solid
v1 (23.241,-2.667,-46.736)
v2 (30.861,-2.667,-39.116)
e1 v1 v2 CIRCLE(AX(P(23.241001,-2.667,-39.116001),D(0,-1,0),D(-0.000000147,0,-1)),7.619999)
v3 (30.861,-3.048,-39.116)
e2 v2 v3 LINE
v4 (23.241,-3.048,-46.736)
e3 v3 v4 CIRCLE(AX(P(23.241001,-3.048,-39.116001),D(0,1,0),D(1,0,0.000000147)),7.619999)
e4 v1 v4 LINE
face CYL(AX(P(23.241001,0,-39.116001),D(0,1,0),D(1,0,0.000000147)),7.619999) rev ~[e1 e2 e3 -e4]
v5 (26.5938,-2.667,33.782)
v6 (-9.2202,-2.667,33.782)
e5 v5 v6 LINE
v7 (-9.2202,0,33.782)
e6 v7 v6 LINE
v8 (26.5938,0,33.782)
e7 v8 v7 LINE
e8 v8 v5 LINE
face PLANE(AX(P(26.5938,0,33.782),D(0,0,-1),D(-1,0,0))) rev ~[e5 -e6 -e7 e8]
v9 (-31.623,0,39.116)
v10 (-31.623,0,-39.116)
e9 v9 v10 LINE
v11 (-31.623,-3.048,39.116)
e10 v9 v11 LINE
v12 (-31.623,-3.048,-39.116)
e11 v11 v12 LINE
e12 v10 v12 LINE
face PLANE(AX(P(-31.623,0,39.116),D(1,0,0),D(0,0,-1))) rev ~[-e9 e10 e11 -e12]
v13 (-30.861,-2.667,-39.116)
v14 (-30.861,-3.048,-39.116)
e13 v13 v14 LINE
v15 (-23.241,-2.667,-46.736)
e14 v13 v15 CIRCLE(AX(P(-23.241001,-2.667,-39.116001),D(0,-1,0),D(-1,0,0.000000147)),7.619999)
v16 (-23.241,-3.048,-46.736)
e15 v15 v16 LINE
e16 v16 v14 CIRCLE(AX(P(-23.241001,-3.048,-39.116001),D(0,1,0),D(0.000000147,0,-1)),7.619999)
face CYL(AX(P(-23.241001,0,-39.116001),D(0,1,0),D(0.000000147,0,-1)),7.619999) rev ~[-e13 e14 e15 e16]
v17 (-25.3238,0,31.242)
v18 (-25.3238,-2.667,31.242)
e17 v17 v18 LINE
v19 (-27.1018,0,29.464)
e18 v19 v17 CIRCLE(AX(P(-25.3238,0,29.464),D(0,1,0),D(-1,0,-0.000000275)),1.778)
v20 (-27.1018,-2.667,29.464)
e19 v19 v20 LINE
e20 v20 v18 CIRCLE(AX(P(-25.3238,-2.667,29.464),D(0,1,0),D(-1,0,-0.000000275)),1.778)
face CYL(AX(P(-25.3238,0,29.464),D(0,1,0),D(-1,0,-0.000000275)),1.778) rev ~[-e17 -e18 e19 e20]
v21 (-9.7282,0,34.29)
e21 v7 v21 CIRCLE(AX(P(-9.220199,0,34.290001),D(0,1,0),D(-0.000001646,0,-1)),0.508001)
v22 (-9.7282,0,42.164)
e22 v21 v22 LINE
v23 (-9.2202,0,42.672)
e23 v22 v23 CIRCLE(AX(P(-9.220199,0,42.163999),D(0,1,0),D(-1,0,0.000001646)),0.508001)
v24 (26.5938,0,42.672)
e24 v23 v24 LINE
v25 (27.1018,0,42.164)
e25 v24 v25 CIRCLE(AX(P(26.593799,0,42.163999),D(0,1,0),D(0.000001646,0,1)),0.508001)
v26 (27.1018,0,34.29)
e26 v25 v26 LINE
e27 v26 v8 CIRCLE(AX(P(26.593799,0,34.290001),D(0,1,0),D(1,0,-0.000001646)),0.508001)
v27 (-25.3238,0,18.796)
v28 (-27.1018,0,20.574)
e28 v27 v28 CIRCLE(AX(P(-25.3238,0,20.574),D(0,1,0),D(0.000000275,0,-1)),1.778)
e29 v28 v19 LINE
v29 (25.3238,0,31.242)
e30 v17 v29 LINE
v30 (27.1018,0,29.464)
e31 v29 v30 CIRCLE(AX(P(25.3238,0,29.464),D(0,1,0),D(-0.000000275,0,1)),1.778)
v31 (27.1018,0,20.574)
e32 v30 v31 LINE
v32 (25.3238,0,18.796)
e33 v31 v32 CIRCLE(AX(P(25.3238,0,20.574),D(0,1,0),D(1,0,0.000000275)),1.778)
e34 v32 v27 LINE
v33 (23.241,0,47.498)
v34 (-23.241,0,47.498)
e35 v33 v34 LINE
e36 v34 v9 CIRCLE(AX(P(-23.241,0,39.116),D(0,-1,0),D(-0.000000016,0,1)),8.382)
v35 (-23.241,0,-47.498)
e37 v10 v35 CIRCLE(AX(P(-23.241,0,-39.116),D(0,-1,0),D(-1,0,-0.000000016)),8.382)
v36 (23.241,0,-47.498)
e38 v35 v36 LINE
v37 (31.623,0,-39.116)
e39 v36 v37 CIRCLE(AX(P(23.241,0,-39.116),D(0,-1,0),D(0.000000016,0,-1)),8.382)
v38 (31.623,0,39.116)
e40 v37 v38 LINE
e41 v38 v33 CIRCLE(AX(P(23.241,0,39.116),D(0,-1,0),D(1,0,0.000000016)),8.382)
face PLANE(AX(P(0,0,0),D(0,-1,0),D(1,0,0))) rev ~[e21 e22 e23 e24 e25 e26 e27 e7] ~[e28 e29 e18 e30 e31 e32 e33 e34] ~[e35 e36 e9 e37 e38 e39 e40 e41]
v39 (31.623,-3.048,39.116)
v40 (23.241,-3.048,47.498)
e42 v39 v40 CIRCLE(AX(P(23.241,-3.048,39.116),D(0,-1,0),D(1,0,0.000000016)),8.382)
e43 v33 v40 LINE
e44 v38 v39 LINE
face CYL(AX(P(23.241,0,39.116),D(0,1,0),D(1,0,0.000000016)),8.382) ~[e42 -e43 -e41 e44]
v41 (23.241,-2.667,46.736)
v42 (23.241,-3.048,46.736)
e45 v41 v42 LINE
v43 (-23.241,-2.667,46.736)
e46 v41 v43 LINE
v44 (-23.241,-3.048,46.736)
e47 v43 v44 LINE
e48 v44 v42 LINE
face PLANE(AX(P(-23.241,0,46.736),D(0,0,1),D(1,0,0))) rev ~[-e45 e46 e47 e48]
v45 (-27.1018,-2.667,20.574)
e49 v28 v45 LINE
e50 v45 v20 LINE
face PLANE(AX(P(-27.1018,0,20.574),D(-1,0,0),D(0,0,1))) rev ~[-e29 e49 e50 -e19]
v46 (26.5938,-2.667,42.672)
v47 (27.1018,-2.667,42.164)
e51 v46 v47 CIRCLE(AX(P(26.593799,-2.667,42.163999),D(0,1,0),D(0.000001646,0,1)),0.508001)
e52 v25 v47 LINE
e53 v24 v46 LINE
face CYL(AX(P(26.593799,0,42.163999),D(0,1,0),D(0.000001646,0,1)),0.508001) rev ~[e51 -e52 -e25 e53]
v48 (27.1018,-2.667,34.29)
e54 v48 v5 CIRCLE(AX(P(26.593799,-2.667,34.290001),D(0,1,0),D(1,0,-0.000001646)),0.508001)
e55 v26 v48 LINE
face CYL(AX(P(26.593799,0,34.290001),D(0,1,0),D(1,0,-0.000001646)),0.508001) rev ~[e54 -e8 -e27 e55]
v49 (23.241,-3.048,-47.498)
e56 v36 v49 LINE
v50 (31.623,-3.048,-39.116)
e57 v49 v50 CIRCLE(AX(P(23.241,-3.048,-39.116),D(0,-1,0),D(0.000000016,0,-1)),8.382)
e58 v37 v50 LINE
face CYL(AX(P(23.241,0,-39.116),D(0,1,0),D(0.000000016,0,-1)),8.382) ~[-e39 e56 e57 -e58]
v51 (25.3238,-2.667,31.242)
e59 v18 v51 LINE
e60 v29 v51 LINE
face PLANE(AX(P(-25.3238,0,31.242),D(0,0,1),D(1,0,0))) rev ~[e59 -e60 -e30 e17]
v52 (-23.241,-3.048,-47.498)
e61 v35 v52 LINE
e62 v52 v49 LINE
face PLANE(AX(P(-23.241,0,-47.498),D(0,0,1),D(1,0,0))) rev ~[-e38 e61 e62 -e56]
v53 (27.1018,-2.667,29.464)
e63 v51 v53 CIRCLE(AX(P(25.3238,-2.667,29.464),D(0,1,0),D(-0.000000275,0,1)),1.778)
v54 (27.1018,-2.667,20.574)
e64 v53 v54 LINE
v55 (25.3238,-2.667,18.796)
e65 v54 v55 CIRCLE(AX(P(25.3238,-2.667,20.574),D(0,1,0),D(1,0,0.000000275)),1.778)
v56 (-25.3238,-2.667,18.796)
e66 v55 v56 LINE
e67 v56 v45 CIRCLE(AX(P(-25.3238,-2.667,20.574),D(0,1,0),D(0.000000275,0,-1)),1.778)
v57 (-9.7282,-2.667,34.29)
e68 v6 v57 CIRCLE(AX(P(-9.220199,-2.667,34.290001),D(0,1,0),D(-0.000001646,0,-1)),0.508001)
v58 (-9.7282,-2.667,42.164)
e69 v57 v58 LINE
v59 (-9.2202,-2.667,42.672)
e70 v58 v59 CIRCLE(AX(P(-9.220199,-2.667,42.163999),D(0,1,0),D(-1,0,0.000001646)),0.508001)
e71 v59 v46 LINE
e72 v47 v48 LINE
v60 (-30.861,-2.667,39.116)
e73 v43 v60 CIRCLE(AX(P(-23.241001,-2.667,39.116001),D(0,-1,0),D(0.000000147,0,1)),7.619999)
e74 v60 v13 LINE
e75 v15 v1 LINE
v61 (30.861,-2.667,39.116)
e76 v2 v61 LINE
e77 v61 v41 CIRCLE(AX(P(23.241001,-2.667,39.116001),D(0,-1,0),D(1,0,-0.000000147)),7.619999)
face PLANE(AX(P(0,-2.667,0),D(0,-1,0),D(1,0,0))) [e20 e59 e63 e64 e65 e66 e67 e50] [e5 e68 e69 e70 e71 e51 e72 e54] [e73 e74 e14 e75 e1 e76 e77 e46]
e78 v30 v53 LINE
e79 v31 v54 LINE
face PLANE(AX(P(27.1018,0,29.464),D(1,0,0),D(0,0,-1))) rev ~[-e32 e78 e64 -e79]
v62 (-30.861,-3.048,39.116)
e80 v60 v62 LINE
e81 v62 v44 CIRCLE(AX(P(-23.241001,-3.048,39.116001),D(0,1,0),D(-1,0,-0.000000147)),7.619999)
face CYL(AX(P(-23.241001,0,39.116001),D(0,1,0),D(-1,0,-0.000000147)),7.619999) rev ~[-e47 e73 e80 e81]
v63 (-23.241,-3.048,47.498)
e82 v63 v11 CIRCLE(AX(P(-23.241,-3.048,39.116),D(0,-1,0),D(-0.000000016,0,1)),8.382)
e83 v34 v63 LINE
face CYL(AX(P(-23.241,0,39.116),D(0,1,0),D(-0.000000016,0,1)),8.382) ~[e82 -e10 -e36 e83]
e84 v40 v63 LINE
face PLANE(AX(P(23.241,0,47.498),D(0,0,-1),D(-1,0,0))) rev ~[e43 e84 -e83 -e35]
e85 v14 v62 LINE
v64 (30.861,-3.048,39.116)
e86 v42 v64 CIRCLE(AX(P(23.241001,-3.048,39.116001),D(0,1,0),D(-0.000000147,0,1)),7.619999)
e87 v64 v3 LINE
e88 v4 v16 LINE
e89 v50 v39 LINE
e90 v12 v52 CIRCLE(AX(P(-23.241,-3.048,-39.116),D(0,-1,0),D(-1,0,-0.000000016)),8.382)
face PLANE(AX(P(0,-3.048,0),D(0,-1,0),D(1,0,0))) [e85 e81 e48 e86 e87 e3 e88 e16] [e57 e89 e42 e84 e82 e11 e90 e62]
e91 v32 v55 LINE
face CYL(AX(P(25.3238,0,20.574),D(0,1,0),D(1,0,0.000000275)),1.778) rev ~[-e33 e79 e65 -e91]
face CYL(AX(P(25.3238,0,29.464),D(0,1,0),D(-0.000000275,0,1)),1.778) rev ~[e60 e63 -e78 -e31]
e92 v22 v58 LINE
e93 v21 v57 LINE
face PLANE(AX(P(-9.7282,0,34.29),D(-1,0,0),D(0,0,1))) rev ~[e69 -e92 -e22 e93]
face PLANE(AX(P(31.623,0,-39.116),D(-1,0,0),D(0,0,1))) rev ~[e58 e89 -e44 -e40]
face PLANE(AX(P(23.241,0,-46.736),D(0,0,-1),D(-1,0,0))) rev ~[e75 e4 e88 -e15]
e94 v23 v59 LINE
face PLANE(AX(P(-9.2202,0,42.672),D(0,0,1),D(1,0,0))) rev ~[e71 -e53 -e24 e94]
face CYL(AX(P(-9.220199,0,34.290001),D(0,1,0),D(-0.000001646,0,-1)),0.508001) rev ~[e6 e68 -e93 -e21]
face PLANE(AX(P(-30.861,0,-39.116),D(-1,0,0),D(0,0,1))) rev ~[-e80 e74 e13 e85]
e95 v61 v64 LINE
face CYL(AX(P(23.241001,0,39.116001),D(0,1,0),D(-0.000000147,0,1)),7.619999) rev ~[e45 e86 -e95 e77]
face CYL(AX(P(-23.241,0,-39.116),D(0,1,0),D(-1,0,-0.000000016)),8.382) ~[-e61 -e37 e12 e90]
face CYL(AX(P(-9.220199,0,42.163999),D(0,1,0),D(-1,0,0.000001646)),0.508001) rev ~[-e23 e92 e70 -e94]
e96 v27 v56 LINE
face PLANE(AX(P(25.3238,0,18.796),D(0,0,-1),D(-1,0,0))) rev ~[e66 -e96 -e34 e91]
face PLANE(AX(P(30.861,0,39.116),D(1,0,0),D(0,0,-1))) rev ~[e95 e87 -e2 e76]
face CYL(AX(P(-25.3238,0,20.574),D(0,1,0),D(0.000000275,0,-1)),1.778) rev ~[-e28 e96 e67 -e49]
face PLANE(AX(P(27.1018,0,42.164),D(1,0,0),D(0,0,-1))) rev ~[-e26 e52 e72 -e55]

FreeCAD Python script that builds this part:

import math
import FreeCAD as App
import Part
import Sketcher

V = App.Vector
Q = App.Units.Quantity

doc = App.newDocument("Part")
params = doc.addObject("Spreadsheet::Sheet", "Params")
for row, (alias, value) in enumerate([
    ("sketch1_radius", "0.3 in"),
    ("sketch1_radius2", "0.33 in"),
    ("sketch1_width", "1.83 in"),
    ("sketch1_height", "3.08 in"),
    ("pad1_length", "0.12 in"),
    ("sketch2_radius", "0.3 in"),
    ("sketch2_radius2", "0.07 in"),
    ("sketch2_radius3", "0.02 in"),
    ("sketch2_width", "1.83 in"),
    ("sketch2_width2", "1.41 in"),
    ("pad2_length", "0.105 in"),
], start=1):
    params.set(f"A{row}", alias)
    params.set(f"B{row}", "=" + value)
    params.setAlias(f"B{row}", alias)

body = doc.addObject("PartDesign::Body", "Body")

sketch1 = body.newObject("Sketcher::SketchObject", "Sketch")
sketch1.AttachmentSupport = (doc.getObject("XZ_Plane"), [""])
sketch1.MapMode = "FlatFace"
sketch1.addGeometry(Part.LineSegment(V(-32, 39, 0), V(-32, -39, 0)), False)
sketch1.addGeometry(Part.ArcOfCircle(Part.Circle(V(-23, -39, 0), V(0, 0, 1), 8), math.radians(-180), math.radians(-90)), False)
sketch1.addGeometry(Part.LineSegment(V(-23, -47, 0), V(23, -47, 0)), False)
sketch1.addGeometry(Part.ArcOfCircle(Part.Circle(V(23, -39, 0), V(0, 0, 1), 8), math.radians(-90), math.radians(0)), False)
sketch1.addGeometry(Part.LineSegment(V(32, -39, 0), V(32, 39, 0)), False)
sketch1.addGeometry(Part.ArcOfCircle(Part.Circle(V(23, 39, 0), V(0, 0, 1), 8), math.radians(0), math.radians(90)), False)
sketch1.addGeometry(Part.LineSegment(V(23, 47, 0), V(-23, 47, 0)), False)
sketch1.addGeometry(Part.ArcOfCircle(Part.Circle(V(-23, 39, 0), V(0, 0, 1), 8), math.radians(90), math.radians(180)), False)
sketch1.addGeometry(Part.LineSegment(V(31, 39, 0), V(31, -39, 0)), False)
sketch1.addGeometry(Part.ArcOfCircle(Part.Circle(V(23, -39, 0), V(0, 0, 1), 8), math.radians(-90), math.radians(0)), False)
sketch1.addGeometry(Part.LineSegment(V(23, -47, 0), V(-23, -47, 0)), False)
sketch1.addGeometry(Part.ArcOfCircle(Part.Circle(V(-23, -39, 0), V(0, 0, 1), 8), math.radians(180), math.radians(270)), False)
sketch1.addGeometry(Part.LineSegment(V(-31, -39, 0), V(-31, 39, 0)), False)
sketch1.addGeometry(Part.ArcOfCircle(Part.Circle(V(-23, 39, 0), V(0, 0, 1), 8), math.radians(90), math.radians(180)), False)
sketch1.addGeometry(Part.LineSegment(V(-23, 47, 0), V(23, 47, 0)), False)
sketch1.addGeometry(Part.ArcOfCircle(Part.Circle(V(23, 39, 0), V(0, 0, 1), 8), math.radians(0), math.radians(90)), False)
sketch1.addConstraint(Sketcher.Constraint("Tangent", 0, 2, 1, 1))
sketch1.addConstraint(Sketcher.Constraint("Tangent", 1, 2, 2, 1))
sketch1.addConstraint(Sketcher.Constraint("Tangent", 2, 2, 3, 1))
sketch1.addConstraint(Sketcher.Constraint("Tangent", 3, 2, 4, 1))
sketch1.addConstraint(Sketcher.Constraint("Tangent", 4, 2, 5, 1))
sketch1.addConstraint(Sketcher.Constraint("Tangent", 5, 2, 6, 1))
sketch1.addConstraint(Sketcher.Constraint("Tangent", 6, 2, 7, 1))
sketch1.addConstraint(Sketcher.Constraint("Tangent", 7, 2, 0, 1))
sketch1.addConstraint(Sketcher.Constraint("Tangent", 8, 2, 9, 2))
sketch1.addConstraint(Sketcher.Constraint("Tangent", 9, 1, 10, 1))
sketch1.addConstraint(Sketcher.Constraint("Tangent", 10, 2, 11, 2))
sketch1.addConstraint(Sketcher.Constraint("Tangent", 11, 1, 12, 1))
sketch1.addConstraint(Sketcher.Constraint("Tangent", 12, 2, 13, 2))
sketch1.addConstraint(Sketcher.Constraint("Tangent", 13, 1, 14, 1))
sketch1.addConstraint(Sketcher.Constraint("Tangent", 14, 2, 15, 2))
sketch1.addConstraint(Sketcher.Constraint("Tangent", 15, 1, 8, 1))
sketch1.addConstraint(Sketcher.Constraint("Vertical", 0))
sketch1.addConstraint(Sketcher.Constraint("Horizontal", 2))
sketch1.addConstraint(Sketcher.Constraint("Vertical", 4))
sketch1.addConstraint(Sketcher.Constraint("Horizontal", 6))
sketch1.addConstraint(Sketcher.Constraint("Vertical", 8))
sketch1.addConstraint(Sketcher.Constraint("Horizontal", 10))
sketch1.addConstraint(Sketcher.Constraint("Vertical", 12))
sketch1.addConstraint(Sketcher.Constraint("Horizontal", 14))
sketch1.addConstraint(Sketcher.Constraint("Coincident", 9, 3, 3, 3))
sketch1.addConstraint(Sketcher.Constraint("Coincident", 11, 3, 1, 3))
sketch1.addConstraint(Sketcher.Constraint("Coincident", 13, 3, 7, 3))
sketch1.addConstraint(Sketcher.Constraint("Equal", 1, 3))
sketch1.addConstraint(Sketcher.Constraint("Equal", 3, 5))
sketch1.addConstraint(Sketcher.Constraint("Equal", 5, 7))
sketch1.addConstraint(Sketcher.Constraint("Equal", 13, 15))
sketch1.addConstraint(Sketcher.Constraint("Symmetric", 1, 3, 5, 3, -1, 1))
sketch1.addConstraint(Sketcher.Constraint("Radius", 9, Q("0.3 in")))
sketch1.addConstraint(Sketcher.Constraint("Radius", 1, Q("0.33 in")))
sketch1.addConstraint(Sketcher.Constraint("DistanceX", 2, 1, 2, 2, Q("1.83 in")))
sketch1.addConstraint(Sketcher.Constraint("DistanceY", 0, 2, 0, 1, Q("3.08 in")))
sketch1.setExpression("Constraints[32]", "Params.sketch1_radius")
sketch1.setExpression("Constraints[33]", "Params.sketch1_radius2")
sketch1.setExpression("Constraints[34]", "Params.sketch1_width")
sketch1.setExpression("Constraints[35]", "Params.sketch1_height")
pad1 = body.newObject("PartDesign::Pad", "Pad")
pad1.Profile = sketch1
pad1.setExpression("Length", "Params.pad1_length")

sketch2 = body.newObject("Sketcher::SketchObject", "Sketch001")
sketch2.AttachmentSupport = (doc.getObject("XZ_Plane"), [""])
sketch2.MapMode = "FlatFace"
sketch2.addGeometry(Part.LineSegment(V(-23.2, -46.7, 0), V(23.2, -46.7, 0)), False)
sketch2.addGeometry(Part.ArcOfCircle(Part.Circle(V(23.2, -39.1, 0), V(0, 0, 1), 7.6), math.radians(-90), math.radians(0)), False)
sketch2.addGeometry(Part.LineSegment(V(30.9, -39.1, 0), V(30.9, 39.1, 0)), False)
sketch2.addGeometry(Part.ArcOfCircle(Part.Circle(V(23.2, 39.1, 0), V(0, 0, 1), 7.6), math.radians(0), math.radians(90)), False)
sketch2.addGeometry(Part.LineSegment(V(23.2, 46.7, 0), V(-23.2, 46.7, 0)), False)
sketch2.addGeometry(Part.ArcOfCircle(Part.Circle(V(-23.2, 39.1, 0), V(0, 0, 1), 7.6), math.radians(90), math.radians(180)), False)
sketch2.addGeometry(Part.LineSegment(V(-30.9, 39.1, 0), V(-30.9, -39.1, 0)), False)
sketch2.addGeometry(Part.ArcOfCircle(Part.Circle(V(-23.2, -39.1, 0), V(0, 0, 1), 7.6), math.radians(180), math.radians(270)), False)
sketch2.addGeometry(Part.LineSegment(V(27.1, 29.5, 0), V(27.1, 20.6, 0)), False)
sketch2.addGeometry(Part.ArcOfCircle(Part.Circle(V(25.3, 20.6, 0), V(0, 0, 1), 1.8), math.radians(-90), math.radians(0)), False)
sketch2.addGeometry(Part.LineSegment(V(25.3, 18.8, 0), V(-25.3, 18.8, 0)), False)
sketch2.addGeometry(Part.ArcOfCircle(Part.Circle(V(-25.3, 20.6, 0), V(0, 0, 1), 1.8), math.radians(180), math.radians(270)), False)
sketch2.addGeometry(Part.LineSegment(V(-27.1, 20.6, 0), V(-27.1, 29.5, 0)), False)
sketch2.addGeometry(Part.ArcOfCircle(Part.Circle(V(-25.3, 29.5, 0), V(0, 0, 1), 1.8), math.radians(90), math.radians(180)), False)
sketch2.addGeometry(Part.LineSegment(V(-25.3, 31.2, 0), V(25.3, 31.2, 0)), False)
sketch2.addGeometry(Part.ArcOfCircle(Part.Circle(V(25.3, 29.5, 0), V(0, 0, 1), 1.8), math.radians(0), math.radians(90)), False)
sketch2.addGeometry(Part.LineSegment(V(-9.7, 34.3, 0), V(-9.7, 42.2, 0)), False)
sketch2.addGeometry(Part.ArcOfCircle(Part.Circle(V(-9.2, 42.2, 0), V(0, 0, 1), 0.5), math.radians(90), math.radians(180)), False)
sketch2.addGeometry(Part.LineSegment(V(-9.2, 42.7, 0), V(26.6, 42.7, 0)), False)
sketch2.addGeometry(Part.ArcOfCircle(Part.Circle(V(26.6, 42.2, 0), V(0, 0, 1), 0.5), math.radians(0), math.radians(90)), False)
sketch2.addGeometry(Part.LineSegment(V(27.1, 42.2, 0), V(27.1, 34.3, 0)), False)
sketch2.addGeometry(Part.ArcOfCircle(Part.Circle(V(26.6, 34.3, 0), V(0, 0, 1), 0.5), math.radians(-90), math.radians(0)), False)
sketch2.addGeometry(Part.LineSegment(V(26.6, 33.8, 0), V(-9.2, 33.8, 0)), False)
sketch2.addGeometry(Part.ArcOfCircle(Part.Circle(V(-9.2, 34.3, 0), V(0, 0, 1), 0.5), math.radians(-180), math.radians(-90)), False)
sketch2.addConstraint(Sketcher.Constraint("Tangent", 0, 2, 1, 1))
sketch2.addConstraint(Sketcher.Constraint("Tangent", 1, 2, 2, 1))
sketch2.addConstraint(Sketcher.Constraint("Tangent", 2, 2, 3, 1))
sketch2.addConstraint(Sketcher.Constraint("Tangent", 3, 2, 4, 1))
sketch2.addConstraint(Sketcher.Constraint("Tangent", 4, 2, 5, 1))
sketch2.addConstraint(Sketcher.Constraint("Tangent", 5, 2, 6, 1))
sketch2.addConstraint(Sketcher.Constraint("Tangent", 6, 2, 7, 1))
sketch2.addConstraint(Sketcher.Constraint("Tangent", 7, 2, 0, 1))
sketch2.addConstraint(Sketcher.Constraint("Tangent", 8, 2, 9, 2))
sketch2.addConstraint(Sketcher.Constraint("Tangent", 9, 1, 10, 1))
sketch2.addConstraint(Sketcher.Constraint("Tangent", 10, 2, 11, 2))
sketch2.addConstraint(Sketcher.Constraint("Tangent", 11, 1, 12, 1))
sketch2.addConstraint(Sketcher.Constraint("Tangent", 12, 2, 13, 2))
sketch2.addConstraint(Sketcher.Constraint("Tangent", 13, 1, 14, 1))
sketch2.addConstraint(Sketcher.Constraint("Tangent", 14, 2, 15, 2))
sketch2.addConstraint(Sketcher.Constraint("Tangent", 15, 1, 8, 1))
sketch2.addConstraint(Sketcher.Constraint("Tangent", 16, 2, 17, 2))
sketch2.addConstraint(Sketcher.Constraint("Tangent", 17, 1, 18, 1))
sketch2.addConstraint(Sketcher.Constraint("Tangent", 18, 2, 19, 2))
sketch2.addConstraint(Sketcher.Constraint("Tangent", 19, 1, 20, 1))
sketch2.addConstraint(Sketcher.Constraint("Tangent", 20, 2, 21, 2))
sketch2.addConstraint(Sketcher.Constraint("Tangent", 21, 1, 22, 1))
sketch2.addConstraint(Sketcher.Constraint("Tangent", 22, 2, 23, 2))
sketch2.addConstraint(Sketcher.Constraint("Tangent", 23, 1, 16, 1))
sketch2.addConstraint(Sketcher.Constraint("Horizontal", 0))
sketch2.addConstraint(Sketcher.Constraint("Vertical", 2))
sketch2.addConstraint(Sketcher.Constraint("Horizontal", 4))
sketch2.addConstraint(Sketcher.Constraint("Vertical", 6))
sketch2.addConstraint(Sketcher.Constraint("Vertical", 8))
sketch2.addConstraint(Sketcher.Constraint("Horizontal", 10))
sketch2.addConstraint(Sketcher.Constraint("Vertical", 12))
sketch2.addConstraint(Sketcher.Constraint("Horizontal", 14))
sketch2.addConstraint(Sketcher.Constraint("Vertical", 16))
sketch2.addConstraint(Sketcher.Constraint("Horizontal", 18))
sketch2.addConstraint(Sketcher.Constraint("Vertical", 20))
sketch2.addConstraint(Sketcher.Constraint("Horizontal", 22))
sketch2.addConstraint(Sketcher.Constraint("Equal", 1, 3))
sketch2.addConstraint(Sketcher.Constraint("Equal", 3, 5))
sketch2.addConstraint(Sketcher.Constraint("Equal", 5, 7))
sketch2.addConstraint(Sketcher.Constraint("Equal", 9, 11))
sketch2.addConstraint(Sketcher.Constraint("Equal", 11, 13))
sketch2.addConstraint(Sketcher.Constraint("Equal", 13, 15))
sketch2.addConstraint(Sketcher.Constraint("Equal", 17, 19))
sketch2.addConstraint(Sketcher.Constraint("Equal", 19, 21))
sketch2.addConstraint(Sketcher.Constraint("Equal", 21, 23))
sketch2.addConstraint(Sketcher.Constraint("Symmetric", 1, 3, 5, 3, -1, 1))
sketch2.addConstraint(Sketcher.Constraint("Vertical", 15, 1, 19, 1))
sketch2.addConstraint(Sketcher.Constraint("Radius", 1, Q("0.3 in")))
sketch2.addConstraint(Sketcher.Constraint("Radius", 9, Q("0.07 in")))
sketch2.addConstraint(Sketcher.Constraint("Radius", 17, Q("0.02 in")))
sketch2.addConstraint(Sketcher.Constraint("DistanceY", 0, 2, 15, 3, Q("3 in")))
sketch2.addConstraint(Sketcher.Constraint("DistanceX", 0, 1, 0, 2, Q("1.83 in")))
sketch2.addConstraint(Sketcher.Constraint("DistanceX", 18, 1, 18, 2, Q("1.41 in")))
sketch2.addConstraint(Sketcher.Constraint("DistanceY", 2, 1, 2, 2, Q("3.08 in")))
sketch2.addConstraint(Sketcher.Constraint("DistanceY", 8, 2, 8, 1, Q("0.35 in")))
sketch2.addConstraint(Sketcher.Constraint("DistanceY", 16, 1, 16, 2, Q("0.31 in")))
sketch2.addConstraint(Sketcher.Constraint("DistanceY", 13, 3, 17, 3, Q("0.4999999 in")))
sketch2.addConstraint(Sketcher.Constraint("DistanceX", 10, 2, 10, 1, Q("1.994 in")))
sketch2.addConstraint(Sketcher.Constraint("DistanceX", -1, 1, 9, 3, Q("0.997 in")))
sketch2.setExpression("Constraints[47]", "Params.sketch2_radius")
sketch2.setExpression("Constraints[48]", "Params.sketch2_radius2")
sketch2.setExpression("Constraints[49]", "Params.sketch2_radius3")
sketch2.setExpression("Constraints[51]", "Params.sketch2_width")
sketch2.setExpression("Constraints[52]", "Params.sketch2_width2")
pad2 = body.newObject("PartDesign::Pad", "Pad001")
pad2.Profile = sketch2
pad2.setExpression("Length", "Params.pad2_length")

doc.recompute()
